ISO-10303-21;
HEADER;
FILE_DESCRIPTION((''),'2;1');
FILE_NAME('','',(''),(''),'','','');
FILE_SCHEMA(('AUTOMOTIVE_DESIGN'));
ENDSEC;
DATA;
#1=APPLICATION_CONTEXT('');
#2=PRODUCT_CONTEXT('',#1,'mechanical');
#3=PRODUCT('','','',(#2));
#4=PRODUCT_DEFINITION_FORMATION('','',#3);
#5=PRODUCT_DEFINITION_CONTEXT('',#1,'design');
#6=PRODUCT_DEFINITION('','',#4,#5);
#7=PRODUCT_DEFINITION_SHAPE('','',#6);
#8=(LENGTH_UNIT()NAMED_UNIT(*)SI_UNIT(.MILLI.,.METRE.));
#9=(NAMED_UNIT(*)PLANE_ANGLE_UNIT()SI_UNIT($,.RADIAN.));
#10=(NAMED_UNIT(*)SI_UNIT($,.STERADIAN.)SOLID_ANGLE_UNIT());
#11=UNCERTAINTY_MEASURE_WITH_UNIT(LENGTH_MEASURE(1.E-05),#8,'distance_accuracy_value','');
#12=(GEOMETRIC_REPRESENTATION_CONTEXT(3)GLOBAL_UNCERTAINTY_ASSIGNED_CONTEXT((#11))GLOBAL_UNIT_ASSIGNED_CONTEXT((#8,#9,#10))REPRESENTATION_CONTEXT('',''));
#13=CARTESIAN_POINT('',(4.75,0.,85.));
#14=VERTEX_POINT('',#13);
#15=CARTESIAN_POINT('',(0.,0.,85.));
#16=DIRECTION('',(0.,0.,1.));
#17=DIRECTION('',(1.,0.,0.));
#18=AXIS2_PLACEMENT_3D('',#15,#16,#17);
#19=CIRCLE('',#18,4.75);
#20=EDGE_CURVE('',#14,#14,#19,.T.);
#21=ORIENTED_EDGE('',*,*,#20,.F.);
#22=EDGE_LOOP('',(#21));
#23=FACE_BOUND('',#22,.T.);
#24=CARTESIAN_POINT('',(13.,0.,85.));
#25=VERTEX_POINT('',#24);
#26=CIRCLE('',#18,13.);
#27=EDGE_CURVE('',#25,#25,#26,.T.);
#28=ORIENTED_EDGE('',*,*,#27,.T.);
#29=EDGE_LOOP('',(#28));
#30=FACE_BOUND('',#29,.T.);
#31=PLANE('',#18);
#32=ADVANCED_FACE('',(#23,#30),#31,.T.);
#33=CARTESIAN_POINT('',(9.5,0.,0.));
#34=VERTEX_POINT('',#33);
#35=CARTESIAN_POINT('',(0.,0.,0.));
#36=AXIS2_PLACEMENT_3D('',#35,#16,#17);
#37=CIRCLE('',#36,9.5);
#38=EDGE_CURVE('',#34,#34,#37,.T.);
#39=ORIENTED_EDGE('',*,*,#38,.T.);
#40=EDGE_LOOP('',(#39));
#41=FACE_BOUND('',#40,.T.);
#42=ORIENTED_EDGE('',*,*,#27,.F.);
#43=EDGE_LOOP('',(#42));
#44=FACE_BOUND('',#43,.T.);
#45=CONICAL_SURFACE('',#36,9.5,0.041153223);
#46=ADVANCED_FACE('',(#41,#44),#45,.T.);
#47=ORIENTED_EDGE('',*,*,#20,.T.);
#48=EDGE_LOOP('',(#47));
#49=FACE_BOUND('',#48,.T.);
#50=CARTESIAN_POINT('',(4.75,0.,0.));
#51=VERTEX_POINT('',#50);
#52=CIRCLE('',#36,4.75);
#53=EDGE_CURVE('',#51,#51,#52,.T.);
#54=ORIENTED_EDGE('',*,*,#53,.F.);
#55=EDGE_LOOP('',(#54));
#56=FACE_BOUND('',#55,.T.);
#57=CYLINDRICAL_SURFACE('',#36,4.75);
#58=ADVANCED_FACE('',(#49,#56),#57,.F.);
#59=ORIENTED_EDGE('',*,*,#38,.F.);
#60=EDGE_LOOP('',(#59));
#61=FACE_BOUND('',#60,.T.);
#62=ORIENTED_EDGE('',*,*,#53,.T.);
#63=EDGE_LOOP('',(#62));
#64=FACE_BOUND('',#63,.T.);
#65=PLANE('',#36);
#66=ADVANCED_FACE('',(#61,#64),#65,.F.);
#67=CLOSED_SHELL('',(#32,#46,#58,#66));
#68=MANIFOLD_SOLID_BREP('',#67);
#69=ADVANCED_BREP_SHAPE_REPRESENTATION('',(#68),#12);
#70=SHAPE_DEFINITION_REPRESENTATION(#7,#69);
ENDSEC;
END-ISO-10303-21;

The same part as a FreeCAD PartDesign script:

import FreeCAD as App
import Part
import Sketcher

V = App.Vector

doc = App.newDocument("Part")
body = doc.addObject("PartDesign::Body", "Body")

# Sketch on XY plane
sketch1 = doc.addObject("Sketcher::SketchObject", "Sketch")
body.addObject(sketch1)
sketch1.AttachmentSupport = (doc.XY_Plane, [""])
sketch1.MapMode = "FlatFace"
sketch1.addGeometry(Part.Circle(V(0, 0, 0), V(0, 0, 1), 9.5), False)
sketch1.addConstraint(Sketcher.Constraint("Coincident", 0, 3, -1, 1))
sketch1.addConstraint(Sketcher.Constraint("Diameter", 0, 19.0))

# Sketch on XY plane
sketch2 = doc.addObject("Sketcher::SketchObject", "Sketch001")
body.addObject(sketch2)
sketch2.AttachmentSupport = (doc.XY_Plane, [""])
sketch2.MapMode = "FlatFace"
sketch2.AttachmentOffset = App.Placement(V(0, 0, 85), App.Rotation())
sketch2.addGeometry(Part.Circle(V(0, 0, 0), V(0, 0, 1), 13), False)
sketch2.addConstraint(Sketcher.Constraint("Coincident", 0, 3, -1, 1))
sketch2.addConstraint(Sketcher.Constraint("Diameter", 0, 26.0))

additiveloft = doc.addObject("PartDesign::AdditiveLoft", "AdditiveLoft")
body.addObject(additiveloft)
additiveloft.Profile = sketch1
additiveloft.Sections = [sketch2]

# Sketch on XY plane
sketch3 = doc.addObject("Sketcher::SketchObject", "Sketch002")
body.addObject(sketch3)
sketch3.AttachmentSupport = (doc.XY_Plane, [""])
sketch3.MapMode = "FlatFace"
sketch3.AttachmentOffset = App.Placement(V(0, 0, 85), App.Rotation())
sketch3.addGeometry(Part.Circle(V(0, 0, 0), V(0, 0, 1), 4.75), False)
sketch3.addConstraint(Sketcher.Constraint("Coincident", 0, 3, -1, 1))
sketch3.addConstraint(Sketcher.Constraint("Diameter", 0, 9.5))
pocket1 = doc.addObject("PartDesign::Pocket", "Pocket")
body.addObject(pocket1)
pocket1.Profile = sketch3
pocket1.Type = "ThroughAll"

doc.recompute()
